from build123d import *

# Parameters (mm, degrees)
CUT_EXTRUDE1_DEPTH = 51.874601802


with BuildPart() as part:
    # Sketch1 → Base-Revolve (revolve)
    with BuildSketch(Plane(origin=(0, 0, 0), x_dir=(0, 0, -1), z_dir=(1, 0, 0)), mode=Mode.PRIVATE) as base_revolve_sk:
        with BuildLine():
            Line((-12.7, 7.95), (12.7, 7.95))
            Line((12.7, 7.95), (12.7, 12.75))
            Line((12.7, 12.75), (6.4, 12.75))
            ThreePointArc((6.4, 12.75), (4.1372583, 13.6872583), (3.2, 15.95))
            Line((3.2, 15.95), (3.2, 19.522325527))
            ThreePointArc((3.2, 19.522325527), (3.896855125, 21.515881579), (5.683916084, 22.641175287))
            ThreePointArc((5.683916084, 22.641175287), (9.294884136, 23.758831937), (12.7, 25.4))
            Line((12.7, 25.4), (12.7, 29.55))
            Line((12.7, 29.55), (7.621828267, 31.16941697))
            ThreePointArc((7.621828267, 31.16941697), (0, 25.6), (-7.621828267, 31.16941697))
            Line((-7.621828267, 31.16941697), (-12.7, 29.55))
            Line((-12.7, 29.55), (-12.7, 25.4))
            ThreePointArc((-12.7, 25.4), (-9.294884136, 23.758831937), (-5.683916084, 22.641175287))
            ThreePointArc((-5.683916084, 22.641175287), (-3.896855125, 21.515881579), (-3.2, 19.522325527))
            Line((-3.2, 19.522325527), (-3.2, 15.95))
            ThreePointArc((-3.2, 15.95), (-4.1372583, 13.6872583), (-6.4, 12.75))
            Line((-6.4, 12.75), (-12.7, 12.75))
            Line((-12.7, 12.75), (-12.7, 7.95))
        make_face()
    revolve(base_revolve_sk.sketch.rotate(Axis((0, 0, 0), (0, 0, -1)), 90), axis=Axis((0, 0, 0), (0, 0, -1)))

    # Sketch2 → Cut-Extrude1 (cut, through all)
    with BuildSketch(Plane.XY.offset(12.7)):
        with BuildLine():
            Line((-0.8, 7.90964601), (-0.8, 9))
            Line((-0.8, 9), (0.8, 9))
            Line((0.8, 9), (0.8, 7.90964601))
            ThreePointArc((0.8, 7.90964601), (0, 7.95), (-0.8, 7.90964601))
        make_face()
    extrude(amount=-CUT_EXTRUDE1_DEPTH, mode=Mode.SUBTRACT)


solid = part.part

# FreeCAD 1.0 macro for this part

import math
import FreeCAD as App
import Part
import Sketcher
from FreeCAD import Vector

doc = App.newDocument("Part")
body = doc.addObject("PartDesign::Body", "Body")

# Sketch on YZ plane
sketch1 = body.newObject("Sketcher::SketchObject", "Sketch")
sketch1.AttachmentSupport = (doc.getObject("YZ_Plane"), [""])
sketch1.MapMode = "FlatFace"
sketch1.addGeometry([
    Part.LineSegment(Vector(8, 12.7, 0), Vector(8, -12.7, 0)),  # 0
    Part.LineSegment(Vector(8, -12.7, 0), Vector(12.8, -12.7, 0)),  # 1
    Part.LineSegment(Vector(12.8, -12.7, 0), Vector(12.8, -6.4, 0)),  # 2
    Part.ArcOfCircle(Part.Circle(Vector(15.9, -6.4, 0), Vector(0, 0, 1), 3.2), math.radians(90), math.radians(180)),  # 3
    Part.LineSegment(Vector(15.9, -3.2, 0), Vector(19.5, -3.2, 0)),  # 4
    Part.ArcOfCircle(Part.Circle(Vector(19.5, -6.4, 0), Vector(0, 0, 1), 3.2), math.radians(13), math.radians(90)),  # 5
    Part.ArcOfCircle(Part.Circle(Vector(47.4, 0, 0), Vector(0, 0, 1), 25.4), math.radians(-167.07), math.radians(-150)),  # 6
    Part.LineSegment(Vector(25.4, -12.7, 0), Vector(29.6, -12.7, 0)),  # 7
    Part.LineSegment(Vector(29.6, -12.7, 0), Vector(31.2, -7.6, 0)),  # 8
    Part.ArcOfCircle(Part.Circle(Vector(33.6, 0, 0), Vector(0, 0, 1), 8), math.radians(108), math.radians(252)),  # 9
    Part.LineSegment(Vector(31.2, 7.6, 0), Vector(29.6, 12.7, 0)),  # 10
    Part.LineSegment(Vector(29.6, 12.7, 0), Vector(25.4, 12.7, 0)),  # 11
    Part.ArcOfCircle(Part.Circle(Vector(47.4, 0, 0), Vector(0, 0, 1), 25.4), math.radians(150), math.radians(167.07)),  # 12
    Part.ArcOfCircle(Part.Circle(Vector(19.5, 6.4, 0), Vector(0, 0, 1), 3.2), math.radians(-90), math.radians(-13)),  # 13
    Part.LineSegment(Vector(19.5, 3.2, 0), Vector(15.9, 3.2, 0)),  # 14
    Part.ArcOfCircle(Part.Circle(Vector(15.9, 6.4, 0), Vector(0, 0, 1), 3.2), math.radians(180), math.radians(270)),  # 15
    Part.LineSegment(Vector(12.8, 6.4, 0), Vector(12.8, 12.7, 0)),  # 16
    Part.LineSegment(Vector(12.8, 12.7, 0), Vector(8, 12.7, 0)),  # 17
], False)
sketch1.addConstraint([
    Sketcher.Constraint("Coincident", 0, 2, 1, 1),
    Sketcher.Constraint("Coincident", 1, 2, 2, 1),
    Sketcher.Constraint("Tangent", 2, 2, 3, 2),
    Sketcher.Constraint("Tangent", 3, 1, 4, 1),
    Sketcher.Constraint("Tangent", 4, 2, 5, 2),
    Sketcher.Constraint("Tangent", 5, 1, 6, 1),
    Sketcher.Constraint("Coincident", 6, 2, 7, 1),
    Sketcher.Constraint("Coincident", 7, 2, 8, 1),
    Sketcher.Constraint("Coincident", 8, 2, 9, 2),
    Sketcher.Constraint("Coincident", 9, 1, 10, 1),
    Sketcher.Constraint("Coincident", 10, 2, 11, 1),
    Sketcher.Constraint("Coincident", 11, 2, 12, 1),
    Sketcher.Constraint("Tangent", 12, 2, 13, 2),
    Sketcher.Constraint("Tangent", 13, 1, 14, 1),
    Sketcher.Constraint("Tangent", 14, 2, 15, 2),
    Sketcher.Constraint("Tangent", 15, 1, 16, 1),
    Sketcher.Constraint("Coincident", 16, 2, 17, 1),
    Sketcher.Constraint("Coincident", 17, 2, 0, 1),
    Sketcher.Constraint("Vertical", 0),
    Sketcher.Constraint("Horizontal", 1),
    Sketcher.Constraint("Vertical", 2),
    Sketcher.Constraint("Horizontal", 4),
    Sketcher.Constraint("Horizontal", 7),
    Sketcher.Constraint("Horizontal", 11),
    Sketcher.Constraint("Horizontal", 14),
    Sketcher.Constraint("Vertical", 16),
    Sketcher.Constraint("Horizontal", 17),
    Sketcher.Constraint("Coincident", 12, 3, 6, 3),
    Sketcher.Constraint("Equal", 3, 5),
    Sketcher.Constraint("Equal", 6, 12),
    Sketcher.Constraint("Equal", 5, 13),
    Sketcher.Constraint("Equal", 13, 15),
    Sketcher.Constraint("Symmetric", 5, 3, 13, 3, -1),
    Sketcher.Constraint("Symmetric", 8, 2, 9, 1, -1),
    Sketcher.Constraint("Symmetric", 7, 2, 10, 2, -1),
    Sketcher.Constraint("Symmetric", 1, 2, 16, 2, -1),
    Sketcher.Constraint("Horizontal", 1, 2, 6, 2),
    Sketcher.Constraint("Radius", 9, 8.0),
    Sketcher.Constraint("Radius", 3, 3.2),
    Sketcher.Constraint("Radius", 6, 25.4),
    Sketcher.Constraint("DistanceX", 1, 1, 1, 2, 4.8),
    Sketcher.Constraint("DistanceY", 0, 2, 0, 1, 25.4),
    Sketcher.Constraint("DistanceY", 2, 1, 2, 2, 6.3),
    Sketcher.Constraint("DistanceX", 7, 1, 7, 2, 4.15),
    Sketcher.Constraint("DistanceX", -1, 1, 9, 3, 33.6),
    Sketcher.Constraint("DistanceX", -1, 1, 6, 2, 25.4),
    Sketcher.Constraint("DistanceX", 15, 3, 10, 2, 13.6),
    Sketcher.Constraint("DistanceY", 8, 2, -1, 1, 7.621828),
])
revolution = body.newObject("PartDesign::Revolution", "Revolution")
revolution.Profile = sketch1
revolution.ReferenceAxis = (sketch1, ["V_Axis"])
revolution.Angle = 360

# Sketch on XY plane
sketch2 = body.newObject("Sketcher::SketchObject", "Sketch001")
sketch2.AttachmentSupport = (doc.getObject("XY_Plane"), [""])
sketch2.MapMode = "FlatFace"
sketch2.AttachmentOffset = App.Placement(Vector(0, 0, 12.7), App.Rotation())
sketch2.addGeometry([
    Part.LineSegment(Vector(-0.8, 9, 0), Vector(-0.8, 7.9, 0)),
    Part.ArcOfCircle(Part.Circle(Vector(0, 0, 0), Vector(0, 0, 1), 8), math.radians(84.22), math.radians(95.78)),
    Part.LineSegment(Vector(0.8, 7.9, 0), Vector(0.8, 9, 0)),
    Part.LineSegment(Vector(0.8, 9, 0), Vector(-0.8, 9, 0)),
], False)
sketch2.addConstraint([
    Sketcher.Constraint("Coincident", 0, 2, 1, 2),
    Sketcher.Constraint("Coincident", 1, 1, 2, 1),
    Sketcher.Constraint("Coincident", 2, 2, 3, 1),
    Sketcher.Constraint("Coincident", 3, 2, 0, 1),
    Sketcher.Constraint("Vertical", 0),
    Sketcher.Constraint("Vertical", 2),
    Sketcher.Constraint("Horizontal", 3),
    Sketcher.Constraint("Coincident", 1, 3, -1, 1),
    Sketcher.Constraint("Horizontal", 0, 2, 1, 1),
    Sketcher.Constraint("Radius", 1, 7.95),
    Sketcher.Constraint("DistanceX", 3, 2, 3, 1, 1.6),
    Sketcher.Constraint("DistanceY", -1, 1, 2, 2, 9.0),
])
pocket1 = body.newObject("PartDesign::Pocket", "Pocket")
pocket1.Profile = sketch2
pocket1.Type = "ThroughAll"

doc.recompute()
